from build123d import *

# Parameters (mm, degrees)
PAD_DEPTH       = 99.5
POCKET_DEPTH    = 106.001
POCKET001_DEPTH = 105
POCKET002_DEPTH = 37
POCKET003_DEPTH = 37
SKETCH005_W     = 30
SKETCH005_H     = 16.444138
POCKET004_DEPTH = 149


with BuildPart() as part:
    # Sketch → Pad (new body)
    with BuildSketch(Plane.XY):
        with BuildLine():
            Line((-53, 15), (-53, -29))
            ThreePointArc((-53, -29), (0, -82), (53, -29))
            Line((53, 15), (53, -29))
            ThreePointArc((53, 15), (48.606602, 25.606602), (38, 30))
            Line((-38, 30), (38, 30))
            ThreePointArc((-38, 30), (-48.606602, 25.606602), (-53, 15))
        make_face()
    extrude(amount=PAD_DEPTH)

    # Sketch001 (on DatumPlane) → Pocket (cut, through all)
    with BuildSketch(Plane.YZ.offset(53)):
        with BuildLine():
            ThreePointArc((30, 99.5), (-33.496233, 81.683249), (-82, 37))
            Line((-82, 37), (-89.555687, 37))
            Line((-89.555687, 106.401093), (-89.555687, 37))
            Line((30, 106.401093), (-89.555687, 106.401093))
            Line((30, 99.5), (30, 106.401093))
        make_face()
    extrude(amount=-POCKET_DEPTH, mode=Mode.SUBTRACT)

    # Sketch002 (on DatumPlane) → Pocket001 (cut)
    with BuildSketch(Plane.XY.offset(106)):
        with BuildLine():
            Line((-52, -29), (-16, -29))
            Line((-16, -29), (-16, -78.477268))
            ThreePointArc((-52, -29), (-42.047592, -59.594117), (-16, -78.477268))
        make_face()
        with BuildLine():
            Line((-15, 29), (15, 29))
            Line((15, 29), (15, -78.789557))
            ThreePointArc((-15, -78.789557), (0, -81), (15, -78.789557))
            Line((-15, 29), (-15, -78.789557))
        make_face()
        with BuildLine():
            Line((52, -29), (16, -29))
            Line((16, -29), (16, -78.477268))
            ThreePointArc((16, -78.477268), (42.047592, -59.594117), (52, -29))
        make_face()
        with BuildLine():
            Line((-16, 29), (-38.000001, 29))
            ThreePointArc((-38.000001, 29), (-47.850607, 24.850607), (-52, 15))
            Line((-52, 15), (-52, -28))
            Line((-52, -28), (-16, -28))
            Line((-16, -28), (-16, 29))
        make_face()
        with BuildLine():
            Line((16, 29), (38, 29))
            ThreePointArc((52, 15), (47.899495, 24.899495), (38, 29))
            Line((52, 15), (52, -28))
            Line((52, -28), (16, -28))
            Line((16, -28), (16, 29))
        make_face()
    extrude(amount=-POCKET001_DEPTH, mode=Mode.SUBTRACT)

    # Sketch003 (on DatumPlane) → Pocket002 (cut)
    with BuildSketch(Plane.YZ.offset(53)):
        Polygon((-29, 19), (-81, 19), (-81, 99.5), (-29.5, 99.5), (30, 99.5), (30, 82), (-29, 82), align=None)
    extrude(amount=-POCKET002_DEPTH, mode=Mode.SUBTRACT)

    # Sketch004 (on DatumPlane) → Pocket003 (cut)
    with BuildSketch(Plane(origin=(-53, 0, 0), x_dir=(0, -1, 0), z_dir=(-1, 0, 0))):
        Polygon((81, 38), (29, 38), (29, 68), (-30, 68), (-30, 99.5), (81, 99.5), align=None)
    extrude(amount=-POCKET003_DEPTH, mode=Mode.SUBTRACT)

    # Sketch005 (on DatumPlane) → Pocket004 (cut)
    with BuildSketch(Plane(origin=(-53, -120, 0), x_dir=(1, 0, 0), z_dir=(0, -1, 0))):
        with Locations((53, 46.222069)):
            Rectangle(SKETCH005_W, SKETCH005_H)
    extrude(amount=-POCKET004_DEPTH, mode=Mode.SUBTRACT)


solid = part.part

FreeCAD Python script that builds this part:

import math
import FreeCAD as App
import Part
import Sketcher

V = App.Vector


def add_polygon(sketch, points):
    """Adds a closed chain of lines whose ends are joined by coincident constraints."""
    first, n = sketch.GeometryCount, len(points)
    for a, b in zip(points, points[1:] + points[:1]):
        sketch.addGeometry(Part.LineSegment(App.Vector(*a, 0), App.Vector(*b, 0)), False)
    for i in range(n):
        sketch.addConstraint(Sketcher.Constraint("Coincident", first + i, 2, first + (i + 1) % n, 1))

doc = App.newDocument("Part")
body = doc.addObject("PartDesign::Body", "Body")

sketch1 = body.newObject("Sketcher::SketchObject", "Sketch")
sketch1.AttachmentSupport = (doc.getObject("XY_Plane"), [""])
sketch1.MapMode = "FlatFace"
sketch1.addGeometry([
    Part.LineSegment(V(-53, 15, 0), V(-53, -29, 0)),
    Part.ArcOfCircle(Part.Circle(V(0, -29, 0), V(0, 0, 1), 53), math.radians(180), math.radians(360)),
    Part.LineSegment(V(53, -29, 0), V(53, 15, 0)),
    Part.ArcOfCircle(Part.Circle(V(38, 15, 0), V(0, 0, 1), 15), math.radians(0), math.radians(90)),
    Part.LineSegment(V(38, 30, 0), V(-38, 30, 0)),
    Part.ArcOfCircle(Part.Circle(V(-38, 15, 0), V(0, 0, 1), 15), math.radians(90), math.radians(180)),
], False)
sketch1.addConstraint([
    Sketcher.Constraint("Tangent", 0, 2, 1, 1),
    Sketcher.Constraint("Tangent", 1, 2, 2, 1),
    Sketcher.Constraint("Tangent", 2, 2, 3, 1),
    Sketcher.Constraint("Tangent", 3, 2, 4, 1),
    Sketcher.Constraint("Tangent", 4, 2, 5, 1),
    Sketcher.Constraint("Tangent", 5, 2, 0, 1),
    Sketcher.Constraint("Vertical", 0),
    Sketcher.Constraint("Vertical", 2),
    Sketcher.Constraint("Horizontal", 4),
    Sketcher.Constraint("Equal", 3, 5),
    Sketcher.Constraint("PointOnObject", 1, 3, -2),
    Sketcher.Constraint("Radius", 1, 53.0),
    Sketcher.Constraint("Radius", 3, 14.999999),
    Sketcher.Constraint("DistanceY", 0, 2, 0, 1, 44.0),
    Sketcher.Constraint("DistanceY", 1, 3, -1, 1, 29.0),
])
pad1 = body.newObject("PartDesign::Pad", "Pad")
pad1.Profile = sketch1
pad1.Length = 99.5

sketch2 = body.newObject("Sketcher::SketchObject", "Sketch001")
sketch2.AttachmentSupport = (doc.getObject("YZ_Plane"), [""])
sketch2.MapMode = "FlatFace"
sketch2.AttachmentOffset = App.Placement(V(0, 0, 53), App.Rotation())
sketch2.addGeometry([
    Part.ArcOfCircle(Part.Circle(V(35, -42, 0), V(0, 0, 1), 141), math.radians(92), math.radians(146)),
    Part.LineSegment(V(30, 100, 0), V(30, 106, 0)),
    Part.LineSegment(V(30, 106, 0), V(-90, 106, 0)),
    Part.LineSegment(V(-90, 106, 0), V(-90, 37, 0)),
    Part.LineSegment(V(-90, 37, 0), V(-82, 37, 0)),
], False)
sketch2.addConstraint([
    Sketcher.Constraint("Coincident", 0, 1, 1, 1),
    Sketcher.Constraint("Coincident", 1, 2, 2, 1),
    Sketcher.Constraint("Coincident", 2, 2, 3, 1),
    Sketcher.Constraint("Coincident", 3, 2, 4, 1),
    Sketcher.Constraint("Coincident", 4, 2, 0, 2),
    Sketcher.Constraint("Vertical", 1),
    Sketcher.Constraint("Horizontal", 2),
    Sketcher.Constraint("Vertical", 3),
    Sketcher.Constraint("Horizontal", 4),
    Sketcher.Constraint("DistanceX", -1, 1, 0, 1, 30.0),
    Sketcher.Constraint("DistanceY", -1, 1, 3, 2, 37.0),
    Sketcher.Constraint("DistanceX", 4, 2, -1, 1, 82.0),
    Sketcher.Constraint("DistanceY", -1, 1, 0, 1, 99.5),
    Sketcher.Constraint("Radius", 0, 141.361421),
    Sketcher.Constraint("DistanceX", 2, 2, 2, 1, 119.555687),
    Sketcher.Constraint("DistanceY", 1, 1, 1, 2, 6.901093),
])
pocket1 = body.newObject("PartDesign::Pocket", "Pocket")
pocket1.Profile = sketch2
pocket1.Type = "ThroughAll"

sketch3 = body.newObject("Sketcher::SketchObject", "Sketch002")
sketch3.AttachmentSupport = (doc.getObject("XY_Plane"), [""])
sketch3.MapMode = "FlatFace"
sketch3.AttachmentOffset = App.Placement(V(0, 0, 106), App.Rotation())
sketch3.addGeometry([
    Part.LineSegment(V(-16, -29, 0), V(-52, -29, 0)),
    Part.ArcOfCircle(Part.Circle(V(0, -29, 0), V(0, 0, 1), 52), math.radians(-180), math.radians(-108)),
    Part.LineSegment(V(-16, -78, 0), V(-16, -29, 0)),
    Part.LineSegment(V(15, 29, 0), V(-15, 29, 0)),
    Part.LineSegment(V(-15, 29, 0), V(-15, -79, 0)),
    Part.ArcOfCircle(Part.Circle(V(0, -29, 0), V(0, 0, 1), 52), math.radians(-107), math.radians(-73)),
    Part.LineSegment(V(15, -79, 0), V(15, 29, 0)),
    Part.LineSegment(V(52, -29, 0), V(16, -29, 0)),
    Part.LineSegment(V(16, -29, 0), V(16, -78, 0)),
    Part.ArcOfCircle(Part.Circle(V(0, -29, 0), V(0, 0, 1), 52), math.radians(-72), math.radians(0)),
    Part.LineSegment(V(-16, 29, 0), V(-38, 29, 0)),
    Part.ArcOfCircle(Part.Circle(V(-38, 15, 0), V(0, 0, 1), 14), math.radians(91), math.radians(179)),
    Part.LineSegment(V(-52, 15, 0), V(-52, -28, 0)),
    Part.LineSegment(V(-52, -28, 0), V(-16, -28, 0)),
    Part.LineSegment(V(-16, -28, 0), V(-16, 29, 0)),
    Part.LineSegment(V(38, 29, 0), V(16, 29, 0)),
    Part.LineSegment(V(16, 29, 0), V(16, -28, 0)),
    Part.LineSegment(V(16, -28, 0), V(52, -28, 0)),
    Part.LineSegment(V(52, -28, 0), V(52, 15, 0)),
    Part.ArcOfCircle(Part.Circle(V(38, 15, 0), V(0, 0, 1), 14), math.radians(0), math.radians(90)),
], False)
sketch3.addConstraint([
    Sketcher.Constraint("Coincident", 0, 2, 1, 1),
    Sketcher.Constraint("Coincident", 1, 2, 2, 1),
    Sketcher.Constraint("Coincident", 2, 2, 0, 1),
    Sketcher.Constraint("Coincident", 3, 2, 4, 1),
    Sketcher.Constraint("Coincident", 4, 2, 5, 1),
    Sketcher.Constraint("Coincident", 5, 2, 6, 1),
    Sketcher.Constraint("Coincident", 6, 2, 3, 1),
    Sketcher.Constraint("Coincident", 7, 2, 8, 1),
    Sketcher.Constraint("Coincident", 8, 2, 9, 1),
    Sketcher.Constraint("Coincident", 9, 2, 7, 1),
    Sketcher.Constraint("Coincident", 10, 2, 11, 1),
    Sketcher.Constraint("Coincident", 11, 2, 12, 1),
    Sketcher.Constraint("Coincident", 12, 2, 13, 1),
    Sketcher.Constraint("Coincident", 13, 2, 14, 1),
    Sketcher.Constraint("Coincident", 14, 2, 10, 1),
    Sketcher.Constraint("Coincident", 15, 2, 16, 1),
    Sketcher.Constraint("Coincident", 16, 2, 17, 1),
    Sketcher.Constraint("Coincident", 17, 2, 18, 1),
    Sketcher.Constraint("Tangent", 18, 2, 19, 1),
    Sketcher.Constraint("Tangent", 19, 2, 15, 1),
    Sketcher.Constraint("Horizontal", 0),
    Sketcher.Constraint("Vertical", 2),
    Sketcher.Constraint("Horizontal", 3),
    Sketcher.Constraint("Vertical", 4),
    Sketcher.Constraint("Vertical", 6),
    Sketcher.Constraint("Horizontal", 7),
    Sketcher.Constraint("Vertical", 8),
    Sketcher.Constraint("Horizontal", 10),
    Sketcher.Constraint("Vertical", 12),
    Sketcher.Constraint("Horizontal", 13),
    Sketcher.Constraint("Vertical", 14),
    Sketcher.Constraint("Horizontal", 15),
    Sketcher.Constraint("Vertical", 16),
    Sketcher.Constraint("Horizontal", 17),
    Sketcher.Constraint("Vertical", 18),
    Sketcher.Constraint("Coincident", 5, 3, 1, 3),
    Sketcher.Constraint("Coincident", 9, 3, 1, 3),
    Sketcher.Constraint("Equal", 1, 9),
    Sketcher.Constraint("Symmetric", 7, 2, 14, 2, -1, 1),
    Sketcher.Constraint("Symmetric", 2, 2, 15, 2, -1, 1),
    Sketcher.Constraint("Symmetric", 4, 2, 5, 2, -2),
    Sketcher.Constraint("Symmetric", 2, 2, 7, 2, -2),
    Sketcher.Constraint("Symmetric", 12, 2, 17, 2, -2),
    Sketcher.Constraint("Horizontal", 9, 3, 0, 2),
    Sketcher.Constraint("Horizontal", 6, 2, 10, 2),
    Sketcher.Constraint("Horizontal", 19, 3, 11, 2),
    Sketcher.Constraint("Vertical", 0, 2, 11, 2),
    Sketcher.Constraint("Equal", 10, 15),
    Sketcher.Constraint("Radius", 1, 52.000002),
    Sketcher.Constraint("Radius", 19, 14.0),
    Sketcher.Constraint("DistanceX", 0, 2, 0, 1, 36.0),
    Sketcher.Constraint("DistanceX", 3, 2, 3, 1, 30.0),
    Sketcher.Constraint("DistanceY", 12, 2, 12, 1, 43.0),
    Sketcher.Constraint("DistanceY", 1, 3, -1, 1, 28.999999),
    Sketcher.Constraint("Radius", 11, 14.170369),
    Sketcher.Constraint("Radius", 5, 51.999997),
])
pocket2 = body.newObject("PartDesign::Pocket", "Pocket001")
pocket2.Profile = sketch3
pocket2.Length = 105

sketch4 = body.newObject("Sketcher::SketchObject", "Sketch003")
sketch4.AttachmentSupport = (doc.getObject("YZ_Plane"), [""])
sketch4.MapMode = "FlatFace"
sketch4.AttachmentOffset = App.Placement(V(0, 0, 53), App.Rotation())
add_polygon(sketch4, [(-81, 19), (-29, 19), (-29, 82), (30, 82), (30, 100), (-81, 100)])
sketch4.addConstraint([
    Sketcher.Constraint("Horizontal", 0),
    Sketcher.Constraint("Vertical", 1),
    Sketcher.Constraint("Horizontal", 2),
    Sketcher.Constraint("Vertical", 3),
    Sketcher.Constraint("Horizontal", 4),
    Sketcher.Constraint("Vertical", 5),
    Sketcher.Constraint("DistanceX", 0, 1, 0, 2, 52.0),
    Sketcher.Constraint("DistanceX", 2, 1, 2, 2, 59.0),
    Sketcher.Constraint("DistanceY", 1, 1, 1, 2, 63.0),
    Sketcher.Constraint("DistanceY", 3, 1, 3, 2, 17.5),
    Sketcher.Constraint("DistanceX", 0, 2, -1, 1, 29.0),
    Sketcher.Constraint("DistanceY", -1, 1, 0, 2, 19.0),
])
pocket3 = body.newObject("PartDesign::Pocket", "Pocket002")
pocket3.Profile = sketch4
pocket3.Length = 37

sketch5 = body.newObject("Sketcher::SketchObject", "Sketch004")
sketch5.AttachmentSupport = (doc.getObject("YZ_Plane"), [""])
sketch5.MapMode = "FlatFace"
sketch5.AttachmentOffset = App.Placement(V(0, 0, -53), App.Rotation())
add_polygon(sketch5, [(-29, 38), (-81, 38), (-81, 100), (30, 100), (30, 68), (-29, 68)])
sketch5.addConstraint([
    Sketcher.Constraint("Horizontal", 0),
    Sketcher.Constraint("Vertical", 1),
    Sketcher.Constraint("Horizontal", 2),
    Sketcher.Constraint("Vertical", 3),
    Sketcher.Constraint("Horizontal", 4),
    Sketcher.Constraint("Vertical", 5),
    Sketcher.Constraint("DistanceX", 0, 2, 0, 1, 52.0),
    Sketcher.Constraint("DistanceX", 2, 1, 2, 2, 111.0),
    Sketcher.Constraint("DistanceY", 5, 2, 5, 1, 30.0),
    Sketcher.Constraint("DistanceY", 1, 1, 1, 2, 61.5),
    Sketcher.Constraint("DistanceX", 0, 2, -1, 1, 81.0),
    Sketcher.Constraint("DistanceY", -1, 1, 0, 2, 38.0),
])
pocket4 = body.newObject("PartDesign::Pocket", "Pocket003")
pocket4.Profile = sketch5
pocket4.Length = 37
pocket4.Reversed = True

sketch6 = body.newObject("Sketcher::SketchObject", "Sketch005")
sketch6.AttachmentSupport = (doc.getObject("XZ_Plane"), [""])
sketch6.MapMode = "FlatFace"
sketch6.AttachmentOffset = App.Placement(V(0, 0, 120), App.Rotation())
add_polygon(sketch6, [(-15, 54), (-15, 38), (15, 38), (15, 54)])
sketch6.addConstraint([
    Sketcher.Constraint("Vertical", 0),
    Sketcher.Constraint("Horizontal", 1),
    Sketcher.Constraint("Vertical", 2),
    Sketcher.Constraint("Horizontal", 3),
    Sketcher.Constraint("DistanceX", 1, 1, 1, 2, 30.0),
    Sketcher.Constraint("DistanceX", 0, 2, -1, 1, 15.0),
    Sketcher.Constraint("DistanceY", -1, 1, 0, 2, 38.0),
    Sketcher.Constraint("DistanceY", 0, 2, 0, 1, 16.444138),
])
pocket5 = body.newObject("PartDesign::Pocket", "Pocket004")
pocket5.Profile = sketch6
pocket5.Length = 149

doc.recompute()
